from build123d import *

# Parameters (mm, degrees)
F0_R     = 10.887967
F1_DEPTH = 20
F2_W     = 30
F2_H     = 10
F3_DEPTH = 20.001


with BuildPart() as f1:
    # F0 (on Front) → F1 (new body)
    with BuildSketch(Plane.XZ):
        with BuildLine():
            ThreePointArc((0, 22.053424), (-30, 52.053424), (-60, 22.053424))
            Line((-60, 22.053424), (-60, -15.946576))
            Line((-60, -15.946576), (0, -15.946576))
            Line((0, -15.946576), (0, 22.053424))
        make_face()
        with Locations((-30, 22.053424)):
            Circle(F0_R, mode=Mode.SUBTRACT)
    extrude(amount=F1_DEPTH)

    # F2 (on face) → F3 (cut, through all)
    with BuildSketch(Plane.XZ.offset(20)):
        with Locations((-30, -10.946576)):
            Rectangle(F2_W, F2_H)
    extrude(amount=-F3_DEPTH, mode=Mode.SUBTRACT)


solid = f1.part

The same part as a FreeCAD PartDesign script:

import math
import FreeCAD as App
import Part
import Sketcher


def add_polygon(sketch, points):
    """Adds a closed chain of lines whose ends are joined by coincident constraints."""
    first, n = sketch.GeometryCount, len(points)
    for a, b in zip(points, points[1:] + points[:1]):
        sketch.addGeometry(Part.LineSegment(App.Vector(*a, 0), App.Vector(*b, 0)), False)
    for i in range(n):
        sketch.addConstraint(Sketcher.Constraint("Coincident", first + i, 2, first + (i + 1) % n, 1))

doc = App.newDocument("Part")
body = doc.addObject("PartDesign::Body", "Body")

sketch1 = body.newObject("Sketcher::SketchObject", "Sketch")
sketch1.AttachmentSupport = (doc.getObject("XZ_Plane"), [""])
sketch1.MapMode = "FlatFace"
sketch1.addGeometry(Part.ArcOfCircle(Part.Circle(App.Vector(-30, 22, 0), App.Vector(0, 0, 1), 30), math.radians(0), math.radians(180)), False)
sketch1.addGeometry(Part.LineSegment(App.Vector(-60, 22, 0), App.Vector(-60, -16, 0)), False)
sketch1.addGeometry(Part.LineSegment(App.Vector(-60, -16, 0), App.Vector(0, -16, 0)), False)
sketch1.addGeometry(Part.LineSegment(App.Vector(0, -16, 0), App.Vector(0, 22, 0)), False)
sketch1.addGeometry(Part.Circle(App.Vector(-30, 22, 0), App.Vector(0, 0, 1), 11), False)
sketch1.addConstraint(Sketcher.Constraint("Tangent", 0, 2, 1, 1))
sketch1.addConstraint(Sketcher.Constraint("Coincident", 1, 2, 2, 1))
sketch1.addConstraint(Sketcher.Constraint("Coincident", 2, 2, 3, 1))
sketch1.addConstraint(Sketcher.Constraint("Tangent", 3, 2, 0, 1))
sketch1.addConstraint(Sketcher.Constraint("Vertical", 1))
sketch1.addConstraint(Sketcher.Constraint("Horizontal", 2))
sketch1.addConstraint(Sketcher.Constraint("Vertical", 3))
sketch1.addConstraint(Sketcher.Constraint("Coincident", 4, 3, 0, 3))
sketch1.addConstraint(Sketcher.Constraint("PointOnObject", 2, 2, -2))
sketch1.addConstraint(Sketcher.Constraint("Radius", 0, 30.0))
sketch1.addConstraint(Sketcher.Constraint("DistanceY", 1, 2, 1, 1, 38.0))
sketch1.addConstraint(Sketcher.Constraint("Diameter", 4, 21.775934))
sketch1.addConstraint(Sketcher.Constraint("DistanceY", -1, 1, 0, 3, 22.053424))
pad1 = body.newObject("PartDesign::Pad", "Pad")
pad1.Profile = sketch1
pad1.Length = 20

sketch2 = body.newObject("Sketcher::SketchObject", "Sketch001")
sketch2.AttachmentSupport = (doc.getObject("XZ_Plane"), [""])
sketch2.MapMode = "FlatFace"
sketch2.AttachmentOffset = App.Placement(App.Vector(0, 0, 20), App.Rotation())
add_polygon(sketch2, [(-45, -6), (-45, -16), (-15, -16), (-15, -6)])
sketch2.addConstraint(Sketcher.Constraint("Vertical", 0))
sketch2.addConstraint(Sketcher.Constraint("Horizontal", 1))
sketch2.addConstraint(Sketcher.Constraint("Vertical", 2))
sketch2.addConstraint(Sketcher.Constraint("Horizontal", 3))
sketch2.addConstraint(Sketcher.Constraint("DistanceX", 1, 1, 1, 2, 30.0))
sketch2.addConstraint(Sketcher.Constraint("DistanceY", 0, 2, 0, 1, 10.0))
sketch2.addConstraint(Sketcher.Constraint("DistanceX", 0, 2, -1, 1, 45.0))
sketch2.addConstraint(Sketcher.Constraint("DistanceY", 0, 2, -1, 1, 15.946576))
pocket1 = body.newObject("PartDesign::Pocket", "Pocket")
pocket1.Profile = sketch2
pocket1.Type = "ThroughAll"

doc.recompute()
